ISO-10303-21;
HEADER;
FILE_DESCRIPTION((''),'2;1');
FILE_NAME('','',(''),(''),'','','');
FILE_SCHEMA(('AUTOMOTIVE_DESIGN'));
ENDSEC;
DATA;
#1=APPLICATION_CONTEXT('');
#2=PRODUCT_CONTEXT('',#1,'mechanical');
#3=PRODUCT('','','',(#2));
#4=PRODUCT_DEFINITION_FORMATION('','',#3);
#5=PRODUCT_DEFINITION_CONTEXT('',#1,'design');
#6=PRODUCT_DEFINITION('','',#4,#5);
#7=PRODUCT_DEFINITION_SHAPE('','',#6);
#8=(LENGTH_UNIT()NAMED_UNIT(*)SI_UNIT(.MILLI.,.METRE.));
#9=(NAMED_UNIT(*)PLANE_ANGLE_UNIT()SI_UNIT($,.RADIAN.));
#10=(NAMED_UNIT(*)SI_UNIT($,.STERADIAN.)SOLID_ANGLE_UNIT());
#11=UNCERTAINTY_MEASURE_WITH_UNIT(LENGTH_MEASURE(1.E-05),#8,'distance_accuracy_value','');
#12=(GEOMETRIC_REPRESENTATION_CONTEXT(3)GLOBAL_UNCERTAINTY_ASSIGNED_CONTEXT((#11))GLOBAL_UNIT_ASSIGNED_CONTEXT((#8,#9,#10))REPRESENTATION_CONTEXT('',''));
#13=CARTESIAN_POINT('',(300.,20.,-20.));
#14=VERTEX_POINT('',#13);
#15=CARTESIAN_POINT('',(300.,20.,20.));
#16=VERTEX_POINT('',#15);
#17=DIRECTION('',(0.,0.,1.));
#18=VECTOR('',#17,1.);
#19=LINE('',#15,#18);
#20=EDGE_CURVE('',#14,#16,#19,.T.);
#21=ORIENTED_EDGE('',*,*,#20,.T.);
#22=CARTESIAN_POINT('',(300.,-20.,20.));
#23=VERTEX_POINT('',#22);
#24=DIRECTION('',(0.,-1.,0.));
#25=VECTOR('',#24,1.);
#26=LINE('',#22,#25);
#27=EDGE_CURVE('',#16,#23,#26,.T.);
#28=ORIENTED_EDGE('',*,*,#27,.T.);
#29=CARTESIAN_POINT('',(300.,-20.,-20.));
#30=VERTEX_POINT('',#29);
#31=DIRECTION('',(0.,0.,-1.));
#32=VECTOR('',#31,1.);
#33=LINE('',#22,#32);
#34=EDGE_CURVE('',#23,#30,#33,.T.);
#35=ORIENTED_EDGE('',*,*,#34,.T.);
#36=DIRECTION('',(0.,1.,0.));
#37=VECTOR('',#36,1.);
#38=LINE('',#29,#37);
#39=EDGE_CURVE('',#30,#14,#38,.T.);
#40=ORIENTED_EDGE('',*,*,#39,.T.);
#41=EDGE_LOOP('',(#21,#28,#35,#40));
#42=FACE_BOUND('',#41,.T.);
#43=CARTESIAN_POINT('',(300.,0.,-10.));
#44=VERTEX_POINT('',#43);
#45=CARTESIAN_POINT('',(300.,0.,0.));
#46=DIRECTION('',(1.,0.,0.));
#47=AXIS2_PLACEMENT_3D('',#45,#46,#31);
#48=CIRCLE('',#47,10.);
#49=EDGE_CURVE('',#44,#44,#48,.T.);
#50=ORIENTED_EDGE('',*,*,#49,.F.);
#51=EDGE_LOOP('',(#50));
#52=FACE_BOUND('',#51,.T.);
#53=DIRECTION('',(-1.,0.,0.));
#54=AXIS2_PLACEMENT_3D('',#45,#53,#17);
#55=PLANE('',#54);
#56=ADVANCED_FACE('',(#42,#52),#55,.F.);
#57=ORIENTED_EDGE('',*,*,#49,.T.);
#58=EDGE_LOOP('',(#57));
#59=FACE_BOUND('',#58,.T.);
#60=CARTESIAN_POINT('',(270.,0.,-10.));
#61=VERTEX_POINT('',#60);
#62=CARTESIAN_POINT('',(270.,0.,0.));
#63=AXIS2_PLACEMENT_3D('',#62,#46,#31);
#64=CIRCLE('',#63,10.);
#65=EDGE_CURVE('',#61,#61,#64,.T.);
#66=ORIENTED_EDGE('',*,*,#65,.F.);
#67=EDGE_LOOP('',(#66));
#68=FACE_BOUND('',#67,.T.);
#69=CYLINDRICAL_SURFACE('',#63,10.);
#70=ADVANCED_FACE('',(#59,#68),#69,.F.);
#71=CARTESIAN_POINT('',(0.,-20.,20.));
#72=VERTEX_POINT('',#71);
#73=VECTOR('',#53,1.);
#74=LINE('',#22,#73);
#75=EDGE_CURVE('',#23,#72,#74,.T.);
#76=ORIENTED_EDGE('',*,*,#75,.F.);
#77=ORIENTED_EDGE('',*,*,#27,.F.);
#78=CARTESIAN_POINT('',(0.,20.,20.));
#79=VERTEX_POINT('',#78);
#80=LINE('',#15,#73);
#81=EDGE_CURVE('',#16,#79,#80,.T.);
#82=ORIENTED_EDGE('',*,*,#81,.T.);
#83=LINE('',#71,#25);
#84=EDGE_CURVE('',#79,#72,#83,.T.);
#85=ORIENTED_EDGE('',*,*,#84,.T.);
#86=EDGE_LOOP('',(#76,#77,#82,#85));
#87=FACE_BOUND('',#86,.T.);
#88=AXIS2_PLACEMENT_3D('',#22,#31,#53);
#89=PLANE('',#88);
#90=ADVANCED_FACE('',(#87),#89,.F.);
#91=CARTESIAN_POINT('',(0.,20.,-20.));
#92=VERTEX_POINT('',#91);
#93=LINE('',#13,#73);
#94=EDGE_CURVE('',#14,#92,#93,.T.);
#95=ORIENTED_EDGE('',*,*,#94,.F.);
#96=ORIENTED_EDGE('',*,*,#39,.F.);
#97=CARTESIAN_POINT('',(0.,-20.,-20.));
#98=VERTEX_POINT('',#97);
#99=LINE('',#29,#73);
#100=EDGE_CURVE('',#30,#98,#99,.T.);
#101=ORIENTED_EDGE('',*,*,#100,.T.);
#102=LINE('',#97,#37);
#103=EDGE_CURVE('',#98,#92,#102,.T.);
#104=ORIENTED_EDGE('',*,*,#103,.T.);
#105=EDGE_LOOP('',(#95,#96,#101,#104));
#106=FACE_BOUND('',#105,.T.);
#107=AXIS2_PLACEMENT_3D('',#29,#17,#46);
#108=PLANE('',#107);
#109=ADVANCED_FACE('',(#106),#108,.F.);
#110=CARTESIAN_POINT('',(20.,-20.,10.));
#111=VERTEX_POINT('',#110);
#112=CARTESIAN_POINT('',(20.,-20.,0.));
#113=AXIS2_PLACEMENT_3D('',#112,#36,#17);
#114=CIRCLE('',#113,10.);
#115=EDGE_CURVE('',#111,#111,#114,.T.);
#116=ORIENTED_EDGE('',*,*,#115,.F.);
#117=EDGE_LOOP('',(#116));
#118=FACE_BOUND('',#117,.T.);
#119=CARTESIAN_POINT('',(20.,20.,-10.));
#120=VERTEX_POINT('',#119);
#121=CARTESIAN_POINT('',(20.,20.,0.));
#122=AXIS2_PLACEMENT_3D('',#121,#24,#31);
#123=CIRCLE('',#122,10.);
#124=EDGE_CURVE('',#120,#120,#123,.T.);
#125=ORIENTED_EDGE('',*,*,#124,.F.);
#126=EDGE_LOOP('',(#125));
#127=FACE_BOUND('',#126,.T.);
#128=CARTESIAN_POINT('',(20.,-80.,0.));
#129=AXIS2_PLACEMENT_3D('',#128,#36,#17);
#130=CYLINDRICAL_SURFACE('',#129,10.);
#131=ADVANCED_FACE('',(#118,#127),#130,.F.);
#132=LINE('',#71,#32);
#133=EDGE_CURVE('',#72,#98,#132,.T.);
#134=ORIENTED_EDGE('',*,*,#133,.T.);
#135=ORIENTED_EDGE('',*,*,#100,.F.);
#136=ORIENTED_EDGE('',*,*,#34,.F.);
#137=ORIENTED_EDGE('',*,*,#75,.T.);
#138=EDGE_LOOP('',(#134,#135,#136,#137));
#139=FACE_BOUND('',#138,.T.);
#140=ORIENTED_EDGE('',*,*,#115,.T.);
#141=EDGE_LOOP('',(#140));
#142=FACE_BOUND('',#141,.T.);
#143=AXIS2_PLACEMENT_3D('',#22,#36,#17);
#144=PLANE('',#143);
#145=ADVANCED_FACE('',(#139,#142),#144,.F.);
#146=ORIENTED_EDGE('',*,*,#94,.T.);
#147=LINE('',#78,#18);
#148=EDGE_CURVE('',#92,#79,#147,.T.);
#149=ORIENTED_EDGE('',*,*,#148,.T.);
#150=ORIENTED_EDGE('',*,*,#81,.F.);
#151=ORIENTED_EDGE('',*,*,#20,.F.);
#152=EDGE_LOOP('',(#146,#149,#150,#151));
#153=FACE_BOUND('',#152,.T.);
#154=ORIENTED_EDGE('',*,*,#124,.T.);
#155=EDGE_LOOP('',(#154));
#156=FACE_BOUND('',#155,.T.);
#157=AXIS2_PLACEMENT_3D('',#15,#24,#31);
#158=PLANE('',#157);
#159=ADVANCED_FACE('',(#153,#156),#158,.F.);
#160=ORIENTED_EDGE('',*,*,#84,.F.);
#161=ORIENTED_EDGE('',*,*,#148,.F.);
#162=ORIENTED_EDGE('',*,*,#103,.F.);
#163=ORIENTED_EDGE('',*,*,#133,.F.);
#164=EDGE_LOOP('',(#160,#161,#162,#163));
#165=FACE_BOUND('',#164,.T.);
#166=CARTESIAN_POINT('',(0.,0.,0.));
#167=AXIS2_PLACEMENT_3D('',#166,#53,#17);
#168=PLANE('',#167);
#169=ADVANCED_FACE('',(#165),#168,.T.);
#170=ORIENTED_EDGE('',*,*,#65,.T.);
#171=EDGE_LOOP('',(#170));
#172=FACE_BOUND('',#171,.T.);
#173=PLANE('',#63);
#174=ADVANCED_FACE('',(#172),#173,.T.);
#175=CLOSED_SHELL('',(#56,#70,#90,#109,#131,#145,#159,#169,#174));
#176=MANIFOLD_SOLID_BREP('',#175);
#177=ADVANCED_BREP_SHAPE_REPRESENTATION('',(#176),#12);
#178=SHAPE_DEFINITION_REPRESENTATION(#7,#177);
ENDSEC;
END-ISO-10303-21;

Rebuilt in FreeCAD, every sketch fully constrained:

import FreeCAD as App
import Part
import Sketcher

V = App.Vector


def add_polygon(sketch, points):
    """Adds a closed chain of lines whose ends are joined by coincident constraints."""
    first, n = sketch.GeometryCount, len(points)
    for a, b in zip(points, points[1:] + points[:1]):
        sketch.addGeometry(Part.LineSegment(App.Vector(*a, 0), App.Vector(*b, 0)), False)
    for i in range(n):
        sketch.addConstraint(Sketcher.Constraint("Coincident", first + i, 2, first + (i + 1) % n, 1))

doc = App.newDocument("Part")
body = doc.addObject("PartDesign::Body", "Body")

# Sketch on YZ plane
sketch1 = body.newObject("Sketcher::SketchObject", "Sketch")
sketch1.AttachmentSupport = (doc.getObject("YZ_Plane"), [""])
sketch1.MapMode = "FlatFace"
add_polygon(sketch1, [(20, 20), (-20, 20), (-20, -20), (20, -20)])  # lines 0-3
sketch1.addConstraint([
    Sketcher.Constraint("Horizontal", 0),
    Sketcher.Constraint("Vertical", 1),
    Sketcher.Constraint("Horizontal", 2),
    Sketcher.Constraint("Vertical", 3),
    Sketcher.Constraint("Symmetric", 0, 2, 2, 2, -1, 1),
    Sketcher.Constraint("Equal", 2, 1),
    Sketcher.Constraint("DistanceX", 0, 2, 0, 1, 40.0),
])
pad1 = body.newObject("PartDesign::Pad", "Pad")
pad1.Profile = sketch1
pad1.Length = 300

# Sketch on XZ plane
sketch2 = body.newObject("Sketcher::SketchObject", "Sketch001")
sketch2.AttachmentSupport = (doc.getObject("XZ_Plane"), [""])
sketch2.MapMode = "FlatFace"
sketch2.addGeometry(Part.Circle(V(20, 0, 0), V(0, 0, 1), 10), False)
sketch2.addConstraint([
    Sketcher.Constraint("PointOnObject", 0, 3, -1),
    Sketcher.Constraint("Diameter", 0, 20.0),
    Sketcher.Constraint("DistanceX", -1, 1, 0, 3, 20.0),
])
pocket1 = body.newObject("PartDesign::Pocket", "Pocket")
pocket1.Profile = sketch2
pocket1.Type = "ThroughAll"
pocket1.Midplane = True

# Sketch on YZ plane
sketch3 = body.newObject("Sketcher::SketchObject", "Sketch002")
sketch3.AttachmentSupport = (doc.getObject("YZ_Plane"), [""])
sketch3.MapMode = "FlatFace"
sketch3.AttachmentOffset = App.Placement(V(0, 0, 300), App.Rotation())
sketch3.addGeometry(Part.Circle(V(0, 0, 0), V(0, 0, 1), 10), False)
sketch3.addConstraint([
    Sketcher.Constraint("Coincident", 0, 3, -1, 1),
    Sketcher.Constraint("Diameter", 0, 20.0),
])
pocket2 = body.newObject("PartDesign::Pocket", "Pocket001")
pocket2.Profile = sketch3
pocket2.Type = "TwoLengths"
pocket2.Length = 50
pocket2.Length2 = 50
pocket2.Reversed = True

# Sketch on YZ plane
sketch4 = body.newObject("Sketcher::SketchObject", "Sketch003")
sketch4.AttachmentSupport = (doc.getObject("YZ_Plane"), [""])
sketch4.MapMode = "FlatFace"
add_polygon(sketch4, [(20, 20), (-20, 20), (-20, -20), (20, -20)])  # lines 0-3
sketch4.addConstraint([
    Sketcher.Constraint("Horizontal", 0),
    Sketcher.Constraint("Vertical", 1),
    Sketcher.Constraint("Horizontal", 2),
    Sketcher.Constraint("Vertical", 3),
    Sketcher.Constraint("Symmetric", 0, 2, 2, 2, -1, 1),
    Sketcher.Constraint("Equal", 2, 1),
    Sketcher.Constraint("DistanceX", 0, 2, 0, 1, 40.0),
])
pad2 = body.newObject("PartDesign::Pad", "Pad001")
pad2.Profile = sketch4
pad2.Length = 300

# Sketch on XZ plane
sketch5 = body.newObject("Sketcher::SketchObject", "Sketch004")
sketch5.AttachmentSupport = (doc.getObject("XZ_Plane"), [""])
sketch5.MapMode = "FlatFace"
sketch5.addGeometry(Part.Circle(V(20, 0, 0), V(0, 0, 1), 10), False)
sketch5.addConstraint([
    Sketcher.Constraint("PointOnObject", 0, 3, -1),
    Sketcher.Constraint("Diameter", 0, 20.0),
    Sketcher.Constraint("DistanceX", -1, 1, 0, 3, 20.0),
])
pocket3 = body.newObject("PartDesign::Pocket", "Pocket002")
pocket3.Profile = sketch5
pocket3.Type = "ThroughAll"
pocket3.Midplane = True

# Sketch on YZ plane
sketch6 = body.newObject("Sketcher::SketchObject", "Sketch005")
sketch6.AttachmentSupport = (doc.getObject("YZ_Plane"), [""])
sketch6.MapMode = "FlatFace"
sketch6.AttachmentOffset = App.Placement(V(0, 0, 300), App.Rotation())
sketch6.addGeometry(Part.Circle(V(0, 0, 0), V(0, 0, 1), 10), False)
sketch6.addConstraint([
    Sketcher.Constraint("Coincident", 0, 3, -1, 1),
    Sketcher.Constraint("Diameter", 0, 20.0),
])
pocket4 = body.newObject("PartDesign::Pocket", "Pocket003")
pocket4.Profile = sketch6
pocket4.Length = 30

doc.recompute()
